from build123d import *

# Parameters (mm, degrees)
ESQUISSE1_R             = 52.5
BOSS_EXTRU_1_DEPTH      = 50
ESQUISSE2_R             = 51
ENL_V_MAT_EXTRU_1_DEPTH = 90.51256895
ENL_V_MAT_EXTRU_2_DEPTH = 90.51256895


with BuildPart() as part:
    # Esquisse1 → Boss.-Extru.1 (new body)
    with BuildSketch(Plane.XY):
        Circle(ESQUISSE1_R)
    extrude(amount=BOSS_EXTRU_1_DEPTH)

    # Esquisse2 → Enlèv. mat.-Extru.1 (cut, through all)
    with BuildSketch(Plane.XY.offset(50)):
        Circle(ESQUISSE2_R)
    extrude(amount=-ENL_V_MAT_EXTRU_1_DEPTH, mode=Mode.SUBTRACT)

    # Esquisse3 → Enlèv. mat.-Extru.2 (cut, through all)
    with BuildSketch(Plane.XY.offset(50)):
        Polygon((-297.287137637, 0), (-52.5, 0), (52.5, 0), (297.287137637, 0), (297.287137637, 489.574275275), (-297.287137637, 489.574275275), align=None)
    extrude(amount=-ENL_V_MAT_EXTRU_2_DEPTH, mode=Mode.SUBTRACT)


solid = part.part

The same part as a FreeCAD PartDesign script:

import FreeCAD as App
import Part
import Sketcher
Q = App.Units.Quantity


def add_polygon(sketch, points):
    """Adds a closed chain of lines whose ends are joined by coincident constraints."""
    first, n = sketch.GeometryCount, len(points)
    for a, b in zip(points, points[1:] + points[:1]):
        sketch.addGeometry(Part.LineSegment(App.Vector(*a, 0), App.Vector(*b, 0)), False)
    for i in range(n):
        sketch.addConstraint(Sketcher.Constraint("Coincident", first + i, 2, first + (i + 1) % n, 1))

doc = App.newDocument("Part")
params = doc.addObject("Spreadsheet::Sheet", "Params")
for row, (alias, value) in enumerate([
    ("sketch1_diameter", "105 mm"),
    ("pad1_length", "50 mm"),
    ("sketch2_diameter", "102 mm"),
], start=1):
    params.set(f"A{row}", alias)
    params.set(f"B{row}", "=" + value)
    params.setAlias(f"B{row}", alias)

body = doc.addObject("PartDesign::Body", "Body")

# Sketch on XY plane
sketch1 = body.newObject("Sketcher::SketchObject", "Sketch")
sketch1.AttachmentSupport = (doc.getObject("XY_Plane"), [""])
sketch1.MapMode = "FlatFace"
sketch1.addGeometry(Part.Circle(App.Vector(0, 0, 0), App.Vector(0, 0, 1), 52), False)
sketch1.addConstraint([
    Sketcher.Constraint("Coincident", 0, 3, -1, 1),
    Sketcher.Constraint("Diameter", 0, Q("105 mm")),
])
sketch1.setExpression("Constraints[1]", "Params.sketch1_diameter")
pad1 = body.newObject("PartDesign::Pad", "Pad")
pad1.Profile = sketch1
pad1.setExpression("Length", "Params.pad1_length")

# Sketch on XY plane
sketch2 = body.newObject("Sketcher::SketchObject", "Sketch001")
sketch2.AttachmentSupport = (doc.getObject("XY_Plane"), [""])
sketch2.MapMode = "FlatFace"
sketch2.AttachmentOffset = App.Placement(App.Vector(0, 0, 50), App.Rotation())
sketch2.addGeometry(Part.Circle(App.Vector(0, 0, 0), App.Vector(0, 0, 1), 51), False)
sketch2.addConstraint([
    Sketcher.Constraint("Coincident", 0, 3, -1, 1),
    Sketcher.Constraint("Diameter", 0, Q("102 mm")),
])
sketch2.setExpression("Constraints[1]", "Params.sketch2_diameter")
pocket1 = body.newObject("PartDesign::Pocket", "Pocket")
pocket1.Profile = sketch2
pocket1.Type = "ThroughAll"

# Sketch on XY plane
sketch3 = body.newObject("Sketcher::SketchObject", "Sketch002")
sketch3.AttachmentSupport = (doc.getObject("XY_Plane"), [""])
sketch3.MapMode = "FlatFace"
sketch3.AttachmentOffset = App.Placement(App.Vector(0, 0, 50), App.Rotation())
add_polygon(sketch3, [(-297, 0), (297, 0), (297, 490), (-297, 490)])  # lines 0-3
sketch3.addConstraint([
    Sketcher.Constraint("Horizontal", 0),
    Sketcher.Constraint("Vertical", 1),
    Sketcher.Constraint("Horizontal", 2),
    Sketcher.Constraint("Vertical", 3),
    Sketcher.Constraint("Symmetric", 0, 2, 3, 2, -1, 1),
    Sketcher.Constraint("DistanceX", 0, 1, 0, 2, Q("594.574275 mm")),
    Sketcher.Constraint("DistanceY", 1, 1, 1, 2, Q("489.574275 mm")),
])
pocket2 = body.newObject("PartDesign::Pocket", "Pocket001")
pocket2.Profile = sketch3
pocket2.Type = "ThroughAll"

doc.recompute()
